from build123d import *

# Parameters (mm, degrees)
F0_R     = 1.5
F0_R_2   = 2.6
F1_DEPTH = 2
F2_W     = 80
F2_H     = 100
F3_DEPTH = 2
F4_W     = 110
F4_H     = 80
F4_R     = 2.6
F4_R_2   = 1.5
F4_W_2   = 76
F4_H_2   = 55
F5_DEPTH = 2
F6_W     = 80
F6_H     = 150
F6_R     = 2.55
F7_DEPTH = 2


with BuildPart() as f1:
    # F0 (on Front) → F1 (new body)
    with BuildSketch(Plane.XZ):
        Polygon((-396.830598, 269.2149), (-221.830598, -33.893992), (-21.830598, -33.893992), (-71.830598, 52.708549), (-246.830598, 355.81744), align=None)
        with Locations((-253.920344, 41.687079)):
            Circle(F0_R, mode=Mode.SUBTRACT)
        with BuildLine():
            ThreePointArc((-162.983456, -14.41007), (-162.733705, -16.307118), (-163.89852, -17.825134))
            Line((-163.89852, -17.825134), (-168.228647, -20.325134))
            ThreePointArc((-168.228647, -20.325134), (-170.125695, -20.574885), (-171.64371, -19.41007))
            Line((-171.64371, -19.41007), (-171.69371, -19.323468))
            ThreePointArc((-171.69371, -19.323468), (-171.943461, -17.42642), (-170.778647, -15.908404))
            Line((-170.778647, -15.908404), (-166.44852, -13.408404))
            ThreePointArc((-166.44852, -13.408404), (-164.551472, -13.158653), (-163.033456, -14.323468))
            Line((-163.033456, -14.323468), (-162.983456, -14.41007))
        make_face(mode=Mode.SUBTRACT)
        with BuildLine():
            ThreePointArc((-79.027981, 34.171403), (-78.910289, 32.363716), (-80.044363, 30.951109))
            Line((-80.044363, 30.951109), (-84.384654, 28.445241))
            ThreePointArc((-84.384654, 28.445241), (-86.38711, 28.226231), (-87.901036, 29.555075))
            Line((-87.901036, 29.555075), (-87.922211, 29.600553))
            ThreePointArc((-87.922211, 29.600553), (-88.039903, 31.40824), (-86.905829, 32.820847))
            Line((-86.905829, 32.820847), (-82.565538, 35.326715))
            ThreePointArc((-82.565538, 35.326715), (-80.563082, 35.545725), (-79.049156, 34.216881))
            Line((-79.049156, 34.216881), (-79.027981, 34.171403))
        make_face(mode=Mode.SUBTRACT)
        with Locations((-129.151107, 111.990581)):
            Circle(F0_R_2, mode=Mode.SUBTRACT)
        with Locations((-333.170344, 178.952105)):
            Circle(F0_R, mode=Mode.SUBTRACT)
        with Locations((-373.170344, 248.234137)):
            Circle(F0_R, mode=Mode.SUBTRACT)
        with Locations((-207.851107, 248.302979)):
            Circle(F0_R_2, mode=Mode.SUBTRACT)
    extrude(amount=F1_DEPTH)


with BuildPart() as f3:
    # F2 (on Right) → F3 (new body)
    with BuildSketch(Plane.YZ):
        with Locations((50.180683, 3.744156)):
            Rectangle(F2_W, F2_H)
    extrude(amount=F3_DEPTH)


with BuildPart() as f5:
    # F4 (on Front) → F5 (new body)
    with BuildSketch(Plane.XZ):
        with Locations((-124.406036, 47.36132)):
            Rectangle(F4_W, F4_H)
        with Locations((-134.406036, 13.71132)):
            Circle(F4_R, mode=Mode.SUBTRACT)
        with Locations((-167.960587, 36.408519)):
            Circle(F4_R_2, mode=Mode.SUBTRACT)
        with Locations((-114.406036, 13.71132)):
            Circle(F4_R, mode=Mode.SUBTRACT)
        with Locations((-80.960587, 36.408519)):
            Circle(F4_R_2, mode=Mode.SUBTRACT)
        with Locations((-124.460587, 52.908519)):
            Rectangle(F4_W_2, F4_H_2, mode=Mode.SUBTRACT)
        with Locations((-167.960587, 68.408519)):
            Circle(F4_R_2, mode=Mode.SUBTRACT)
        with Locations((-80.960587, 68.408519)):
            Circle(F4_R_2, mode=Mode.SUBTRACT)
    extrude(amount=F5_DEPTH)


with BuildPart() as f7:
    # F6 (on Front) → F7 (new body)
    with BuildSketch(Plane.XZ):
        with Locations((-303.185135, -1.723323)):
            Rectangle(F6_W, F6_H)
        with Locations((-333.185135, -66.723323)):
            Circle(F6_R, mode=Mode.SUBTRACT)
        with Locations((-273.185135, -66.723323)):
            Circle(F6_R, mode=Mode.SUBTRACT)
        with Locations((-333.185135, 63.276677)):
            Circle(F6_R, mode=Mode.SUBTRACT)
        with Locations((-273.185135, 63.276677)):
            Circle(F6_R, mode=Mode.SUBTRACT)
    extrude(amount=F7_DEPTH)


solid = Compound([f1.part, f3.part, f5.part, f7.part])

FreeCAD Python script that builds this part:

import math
import FreeCAD as App
import Part
import Sketcher
Q = App.Units.Quantity


def add_polygon(sketch, points):
    """Adds a closed chain of lines whose ends are joined by coincident constraints."""
    first, n = sketch.GeometryCount, len(points)
    for a, b in zip(points, points[1:] + points[:1]):
        sketch.addGeometry(Part.LineSegment(App.Vector(*a, 0), App.Vector(*b, 0)), False)
    for i in range(n):
        sketch.addConstraint(Sketcher.Constraint("Coincident", first + i, 2, first + (i + 1) % n, 1))

doc = App.newDocument("Part")
body = doc.addObject("PartDesign::Body", "Body")

# Sketch on XZ plane
sketch1 = doc.addObject("Sketcher::SketchObject", "Sketch")
body.addObject(sketch1)
sketch1.AttachmentSupport = (doc.XZ_Plane, [""])
sketch1.MapMode = "FlatFace"
add_polygon(sketch1, [(-396.83, 269.21), (-221.83, -33.89), (-21.83, -33.89), (-71.83, 52.71), (-246.83, 355.82)])  # lines 0-4
sketch1.addGeometry(Part.Circle(App.Vector(-253.92, 41.69, 0), App.Vector(0, 0, 1), 1.5), False)  # 5
sketch1.addGeometry(Part.LineSegment(App.Vector(-163.03, -14.32, 0), App.Vector(-162.98, -14.41, 0)), False)  # 6
sketch1.addGeometry(Part.ArcOfCircle(Part.Circle(App.Vector(-165.15, -15.66, 0), App.Vector(0, 0, 1), 2.5), math.radians(-60), math.radians(30)), False)  # 7
sketch1.addGeometry(Part.LineSegment(App.Vector(-163.9, -17.83, 0), App.Vector(-168.23, -20.33, 0)), False)  # 8
sketch1.addGeometry(Part.ArcOfCircle(Part.Circle(App.Vector(-169.48, -18.16, 0), App.Vector(0, 0, 1), 2.5), math.radians(-150), math.radians(-60)), False)  # 9
sketch1.addGeometry(Part.LineSegment(App.Vector(-171.64, -19.41, 0), App.Vector(-171.69, -19.32, 0)), False)  # 10
sketch1.addGeometry(Part.ArcOfCircle(Part.Circle(App.Vector(-169.53, -18.07, 0), App.Vector(0, 0, 1), 2.5), math.radians(120), math.radians(210)), False)  # 11
sketch1.addGeometry(Part.LineSegment(App.Vector(-170.78, -15.91, 0), App.Vector(-166.45, -13.41, 0)), False)  # 12
sketch1.addGeometry(Part.ArcOfCircle(Part.Circle(App.Vector(-165.2, -15.57, 0), App.Vector(0, 0, 1), 2.5), math.radians(30), math.radians(120)), False)  # 13
sketch1.addGeometry(Part.LineSegment(App.Vector(-79.05, 34.22, 0), App.Vector(-79.03, 34.17, 0)), False)  # 14
sketch1.addGeometry(Part.ArcOfCircle(Part.Circle(App.Vector(-81.29, 33.12, 0), App.Vector(0, 0, 1), 2.5), math.radians(-60), math.radians(25)), False)  # 15
sketch1.addGeometry(Part.LineSegment(App.Vector(-80.04, 30.95, 0), App.Vector(-84.38, 28.45, 0)), False)  # 16
sketch1.addGeometry(Part.ArcOfCircle(Part.Circle(App.Vector(-85.63, 30.61, 0), App.Vector(0, 0, 1), 2.5), math.radians(-155), math.radians(-60)), False)  # 17
sketch1.addGeometry(Part.LineSegment(App.Vector(-87.9, 29.56, 0), App.Vector(-87.92, 29.6, 0)), False)  # 18
sketch1.addGeometry(Part.ArcOfCircle(Part.Circle(App.Vector(-85.66, 30.66, 0), App.Vector(0, 0, 1), 2.5), math.radians(120), math.radians(205)), False)  # 19
sketch1.addGeometry(Part.LineSegment(App.Vector(-86.91, 32.82, 0), App.Vector(-82.57, 35.33, 0)), False)  # 20
sketch1.addGeometry(Part.ArcOfCircle(Part.Circle(App.Vector(-81.32, 33.16, 0), App.Vector(0, 0, 1), 2.5), math.radians(25), math.radians(120)), False)  # 21
sketch1.addGeometry(Part.Circle(App.Vector(-129.15, 111.99, 0), App.Vector(0, 0, 1), 2.6), False)  # 22
sketch1.addGeometry(Part.Circle(App.Vector(-333.17, 178.95, 0), App.Vector(0, 0, 1), 1.5), False)  # 23
sketch1.addGeometry(Part.Circle(App.Vector(-373.17, 248.23, 0), App.Vector(0, 0, 1), 1.5), False)  # 24
sketch1.addGeometry(Part.Circle(App.Vector(-207.85, 248.3, 0), App.Vector(0, 0, 1), 2.6), False)  # 25
sketch1.addConstraint([
    Sketcher.Constraint("Coincident", 6, 2, 7, 2),
    Sketcher.Constraint("Tangent", 7, 1, 8, 1),
    Sketcher.Constraint("Tangent", 8, 2, 9, 2),
    Sketcher.Constraint("Coincident", 9, 1, 10, 1),
    Sketcher.Constraint("Coincident", 10, 2, 11, 2),
    Sketcher.Constraint("Tangent", 11, 1, 12, 1),
    Sketcher.Constraint("Tangent", 12, 2, 13, 2),
    Sketcher.Constraint("Coincident", 13, 1, 6, 1),
    Sketcher.Constraint("Coincident", 14, 2, 15, 2),
    Sketcher.Constraint("Tangent", 15, 1, 16, 1),
    Sketcher.Constraint("Tangent", 16, 2, 17, 2),
    Sketcher.Constraint("Coincident", 17, 1, 18, 1),
    Sketcher.Constraint("Coincident", 18, 2, 19, 2),
    Sketcher.Constraint("Tangent", 19, 1, 20, 1),
    Sketcher.Constraint("Tangent", 20, 2, 21, 2),
    Sketcher.Constraint("Coincident", 21, 1, 14, 1),
    Sketcher.Constraint("Horizontal", 1),
    Sketcher.Constraint("Equal", 7, 9),
    Sketcher.Constraint("Equal", 7, 11),
    Sketcher.Constraint("Equal", 11, 13),
    Sketcher.Constraint("Equal", 13, 15),
    Sketcher.Constraint("Equal", 15, 17),
    Sketcher.Constraint("Equal", 17, 19),
    Sketcher.Constraint("Equal", 19, 21),
    Sketcher.Constraint("Equal", 5, 23),
    Sketcher.Constraint("Equal", 23, 24),
    Sketcher.Constraint("Equal", 22, 25),
    Sketcher.Constraint("Parallel", 0, 2),
    Sketcher.Constraint("Parallel", 2, 3),
    Sketcher.Constraint("Perpendicular", 3, 4),
    Sketcher.Constraint("Parallel", 4, 8),
    Sketcher.Constraint("Parallel", 6, 10),
    Sketcher.Constraint("Parallel", 8, 12),
    Sketcher.Constraint("Parallel", 12, 16),
    Sketcher.Constraint("Parallel", 14, 18),
    Sketcher.Constraint("Parallel", 16, 20),
    Sketcher.Constraint("Equal", 0, 3),
    Sketcher.Constraint("Equal", 6, 10),
    Sketcher.Constraint("Equal", 14, 18),
    Sketcher.Constraint("Diameter", 5, 3.0),
    Sketcher.Constraint("Diameter", 22, 5.2),
    Sketcher.Constraint("Radius", 7, 2.5),
    Sketcher.Constraint("DistanceX", 1, 1, 1, 2, 200.0),
    Sketcher.Constraint("Angle", 0, Q("-60 deg")),
    Sketcher.Constraint("Distance", 0, 350.000001),
    Sketcher.Constraint("Distance", 8, 5.0),
    Sketcher.Constraint("DistanceX", 24, 3, 23, 3, 40.0),
    Sketcher.Constraint("Distance", 6, 0.1),
    Sketcher.Constraint("DistanceX", 25, 3, 22, 3, 78.7),
    Sketcher.Constraint("DistanceX", 13, 3, 7, 1, 1.3),
    Sketcher.Constraint("DistanceX", 23, 3, 5, 3, 79.25),
    Sketcher.Constraint("DistanceY", 7, 3, 6, 2, 1.25),
    Sketcher.Constraint("DistanceY", 9, 1, 9, 3, 1.249998),
    Sketcher.Constraint("DistanceX", 10, 2, 9, 1, 0.05),
    Sketcher.Constraint("DistanceX", 0, 2, -1, 1, 221.830598),
    Sketcher.Constraint("DistanceY", -1, 1, 4, 2, 269.2149),
    Sketcher.Constraint("DistanceX", 5, 3, 11, 3, 84.391699),
    Sketcher.Constraint("DistanceY", 5, 3, 25, 3, 206.6159),
    Sketcher.Constraint("DistanceY", 21, 3, 2, 2, 19.546898),
    Sketcher.Constraint("DistanceY", -1, 1, 5, 3, 41.687079),
    Sketcher.Constraint("DistanceX", 7, 3, -1, 1, 165.14852),
    Sketcher.Constraint("DistanceY", 7, 3, -1, 1, 15.66007),
    Sketcher.Constraint("DistanceX", 19, 3, -1, 1, 85.655829),
    Sketcher.Constraint("DistanceX", 21, 3, -1, 1, 81.315539),
    Sketcher.Constraint("DistanceY", -1, 1, 22, 3, 111.990581),
    Sketcher.Constraint("DistanceX", 14, 2, -1, 1, 79.027981),
    Sketcher.Constraint("DistanceY", -1, 1, 15, 1, 30.951109),
    Sketcher.Constraint("DistanceX", 18, 2, -1, 1, 87.922211),
    Sketcher.Constraint("DistanceY", -1, 1, 21, 1, 34.216881),
    Sketcher.Constraint("DistanceX", 5, 3, 15, 3, 172.625981),
    Sketcher.Constraint("DistanceX", 22, 3, 21, 3, 47.835568),
    Sketcher.Constraint("DistanceY", 5, 3, 24, 3, 206.547058),
    Sketcher.Constraint("DistanceY", -1, 1, 23, 3, 178.952105),
])
pad1 = doc.addObject("PartDesign::Pad", "Pad")
body.addObject(pad1)
pad1.Profile = sketch1
pad1.Length = 2
body2 = doc.addObject("PartDesign::Body", "Body001")

# Sketch on YZ plane
sketch2 = doc.addObject("Sketcher::SketchObject", "Sketch001")
body2.addObject(sketch2)
sketch2.AttachmentSupport = (doc.getObject("YZ_Plane001"), [""])
sketch2.MapMode = "FlatFace"
add_polygon(sketch2, [(10, 54), (10, -46), (90, -46), (90, 54)])  # lines 0-3
sketch2.addConstraint([
    Sketcher.Constraint("Vertical", 0),
    Sketcher.Constraint("Horizontal", 1),
    Sketcher.Constraint("Vertical", 2),
    Sketcher.Constraint("Horizontal", 3),
    Sketcher.Constraint("DistanceX", 1, 1, 1, 2, 80.0),
    Sketcher.Constraint("DistanceY", 0, 2, 0, 1, 100.0),
    Sketcher.Constraint("DistanceX", -1, 1, 0, 2, 10.180683),
    Sketcher.Constraint("DistanceY", 0, 2, -1, 1, 46.255844),
])
pad2 = doc.addObject("PartDesign::Pad", "Pad001")
body2.addObject(pad2)
pad2.Profile = sketch2
pad2.Length = 2
body3 = doc.addObject("PartDesign::Body", "Body002")

# Sketch on XZ plane
sketch3 = doc.addObject("Sketcher::SketchObject", "Sketch002")
body3.addObject(sketch3)
sketch3.AttachmentSupport = (doc.getObject("XZ_Plane002"), [""])
sketch3.MapMode = "FlatFace"
add_polygon(sketch3, [(-179.4, 87.4), (-179.4, 7.4), (-69.4, 7.4), (-69.4, 87.4)])  # lines 0-3
sketch3.addGeometry(Part.Circle(App.Vector(-134.4, 13.7, 0), App.Vector(0, 0, 1), 2.6), False)  # 4
sketch3.addGeometry(Part.Circle(App.Vector(-168, 36.4, 0), App.Vector(0, 0, 1), 1.5), False)  # 5
sketch3.addGeometry(Part.Circle(App.Vector(-114.4, 13.7, 0), App.Vector(0, 0, 1), 2.6), False)  # 6
sketch3.addGeometry(Part.Circle(App.Vector(-81, 36.4, 0), App.Vector(0, 0, 1), 1.5), False)  # 7
sketch3.addGeometry(Part.Circle(App.Vector(-168, 68.4, 0), App.Vector(0, 0, 1), 1.5), False)  # 8
add_polygon(sketch3, [(-86.5, 25.4), (-162.5, 25.4), (-162.5, 80.4), (-86.5, 80.4)])  # lines 9-12
sketch3.addGeometry(Part.Circle(App.Vector(-81, 68.4, 0), App.Vector(0, 0, 1), 1.5), False)  # 13
sketch3.addConstraint([
    Sketcher.Constraint("Vertical", 0),
    Sketcher.Constraint("Horizontal", 1),
    Sketcher.Constraint("Vertical", 2),
    Sketcher.Constraint("Horizontal", 3),
    Sketcher.Constraint("Horizontal", 9),
    Sketcher.Constraint("Vertical", 10),
    Sketcher.Constraint("Horizontal", 11),
    Sketcher.Constraint("Vertical", 12),
    Sketcher.Constraint("Equal", 4, 6),
    Sketcher.Constraint("Equal", 5, 7),
    Sketcher.Constraint("Equal", 7, 8),
    Sketcher.Constraint("Equal", 8, 13),
    Sketcher.Constraint("Horizontal", 4, 3, 6, 3),
    Sketcher.Constraint("Horizontal", 5, 3, 7, 3),
    Sketcher.Constraint("Horizontal", 8, 3, 13, 3),
    Sketcher.Constraint("Vertical", 5, 3, 8, 3),
    Sketcher.Constraint("Vertical", 7, 3, 13, 3),
    Sketcher.Constraint("Diameter", 5, 3.0),
    Sketcher.Constraint("Diameter", 4, 5.2),
    Sketcher.Constraint("DistanceX", 1, 1, 1, 2, 110.0),
    Sketcher.Constraint("DistanceX", 9, 2, 9, 1, 76.0),
    Sketcher.Constraint("DistanceY", 0, 2, 0, 1, 80.0),
    Sketcher.Constraint("DistanceY", 10, 1, 10, 2, 55.0),
    Sketcher.Constraint("DistanceX", 4, 3, 6, 3, 20.0),
    Sketcher.Constraint("DistanceX", 5, 3, 7, 3, 87.0),
    Sketcher.Constraint("DistanceY", 5, 3, 8, 3, 32.0),
    Sketcher.Constraint("DistanceX", 0, 2, 4, 3, 45.0),
    Sketcher.Constraint("DistanceY", 9, 2, 5, 3, 11.0),
    Sketcher.Constraint("DistanceX", 5, 3, 9, 2, 5.5),
    Sketcher.Constraint("DistanceY", 0, 2, 4, 3, 6.35),
    Sketcher.Constraint("DistanceY", 4, 3, 5, 3, 22.697199),
    Sketcher.Constraint("DistanceY", -1, 1, 4, 3, 13.71132),
    Sketcher.Constraint("DistanceX", 5, 3, 4, 3, 33.554551),
    Sketcher.Constraint("DistanceX", 4, 3, -1, 1, 134.406036),
])
pad3 = doc.addObject("PartDesign::Pad", "Pad002")
body3.addObject(pad3)
pad3.Profile = sketch3
pad3.Length = 2
body4 = doc.addObject("PartDesign::Body", "Body003")

# Sketch on XZ plane
sketch4 = doc.addObject("Sketcher::SketchObject", "Sketch003")
body4.addObject(sketch4)
sketch4.AttachmentSupport = (doc.getObject("XZ_Plane003"), [""])
sketch4.MapMode = "FlatFace"
add_polygon(sketch4, [(-343.2, 73.3), (-343.2, -76.7), (-263.2, -76.7), (-263.2, 73.3)])  # lines 0-3
sketch4.addGeometry(Part.Circle(App.Vector(-333.2, -66.7, 0), App.Vector(0, 0, 1), 2.5), False)  # 4
sketch4.addGeometry(Part.Circle(App.Vector(-273.2, -66.7, 0), App.Vector(0, 0, 1), 2.5), False)  # 5
sketch4.addGeometry(Part.Circle(App.Vector(-333.2, 63.3, 0), App.Vector(0, 0, 1), 2.5), False)  # 6
sketch4.addGeometry(Part.Circle(App.Vector(-273.2, 63.3, 0), App.Vector(0, 0, 1), 2.5), False)  # 7
sketch4.addConstraint([
    Sketcher.Constraint("Vertical", 0),
    Sketcher.Constraint("Horizontal", 1),
    Sketcher.Constraint("Vertical", 2),
    Sketcher.Constraint("Horizontal", 3),
    Sketcher.Constraint("Equal", 4, 5),
    Sketcher.Constraint("Equal", 5, 6),
    Sketcher.Constraint("Equal", 6, 7),
    Sketcher.Constraint("Horizontal", 4, 3, 5, 3),
    Sketcher.Constraint("Horizontal", 6, 3, 7, 3),
    Sketcher.Constraint("Vertical", 4, 3, 6, 3),
    Sketcher.Constraint("Vertical", 5, 3, 7, 3),
    Sketcher.Constraint("Diameter", 4, 5.1),
    Sketcher.Constraint("DistanceX", 1, 1, 1, 2, 80.0),
    Sketcher.Constraint("DistanceY", 0, 2, 0, 1, 150.0),
    Sketcher.Constraint("DistanceX", 4, 3, 5, 3, 60.0),
    Sketcher.Constraint("DistanceY", 4, 3, 6, 3, 130.0),
    Sketcher.Constraint("DistanceX", 0, 2, 4, 3, 10.0),
    Sketcher.Constraint("DistanceY", 0, 2, 4, 3, 10.0),
    Sketcher.Constraint("DistanceX", 4, 3, -1, 1, 333.185135),
    Sketcher.Constraint("DistanceY", 4, 3, -1, 1, 66.723323),
])
pad4 = doc.addObject("PartDesign::Pad", "Pad003")
body4.addObject(pad4)
pad4.Profile = sketch4
pad4.Length = 2

doc.recompute()
